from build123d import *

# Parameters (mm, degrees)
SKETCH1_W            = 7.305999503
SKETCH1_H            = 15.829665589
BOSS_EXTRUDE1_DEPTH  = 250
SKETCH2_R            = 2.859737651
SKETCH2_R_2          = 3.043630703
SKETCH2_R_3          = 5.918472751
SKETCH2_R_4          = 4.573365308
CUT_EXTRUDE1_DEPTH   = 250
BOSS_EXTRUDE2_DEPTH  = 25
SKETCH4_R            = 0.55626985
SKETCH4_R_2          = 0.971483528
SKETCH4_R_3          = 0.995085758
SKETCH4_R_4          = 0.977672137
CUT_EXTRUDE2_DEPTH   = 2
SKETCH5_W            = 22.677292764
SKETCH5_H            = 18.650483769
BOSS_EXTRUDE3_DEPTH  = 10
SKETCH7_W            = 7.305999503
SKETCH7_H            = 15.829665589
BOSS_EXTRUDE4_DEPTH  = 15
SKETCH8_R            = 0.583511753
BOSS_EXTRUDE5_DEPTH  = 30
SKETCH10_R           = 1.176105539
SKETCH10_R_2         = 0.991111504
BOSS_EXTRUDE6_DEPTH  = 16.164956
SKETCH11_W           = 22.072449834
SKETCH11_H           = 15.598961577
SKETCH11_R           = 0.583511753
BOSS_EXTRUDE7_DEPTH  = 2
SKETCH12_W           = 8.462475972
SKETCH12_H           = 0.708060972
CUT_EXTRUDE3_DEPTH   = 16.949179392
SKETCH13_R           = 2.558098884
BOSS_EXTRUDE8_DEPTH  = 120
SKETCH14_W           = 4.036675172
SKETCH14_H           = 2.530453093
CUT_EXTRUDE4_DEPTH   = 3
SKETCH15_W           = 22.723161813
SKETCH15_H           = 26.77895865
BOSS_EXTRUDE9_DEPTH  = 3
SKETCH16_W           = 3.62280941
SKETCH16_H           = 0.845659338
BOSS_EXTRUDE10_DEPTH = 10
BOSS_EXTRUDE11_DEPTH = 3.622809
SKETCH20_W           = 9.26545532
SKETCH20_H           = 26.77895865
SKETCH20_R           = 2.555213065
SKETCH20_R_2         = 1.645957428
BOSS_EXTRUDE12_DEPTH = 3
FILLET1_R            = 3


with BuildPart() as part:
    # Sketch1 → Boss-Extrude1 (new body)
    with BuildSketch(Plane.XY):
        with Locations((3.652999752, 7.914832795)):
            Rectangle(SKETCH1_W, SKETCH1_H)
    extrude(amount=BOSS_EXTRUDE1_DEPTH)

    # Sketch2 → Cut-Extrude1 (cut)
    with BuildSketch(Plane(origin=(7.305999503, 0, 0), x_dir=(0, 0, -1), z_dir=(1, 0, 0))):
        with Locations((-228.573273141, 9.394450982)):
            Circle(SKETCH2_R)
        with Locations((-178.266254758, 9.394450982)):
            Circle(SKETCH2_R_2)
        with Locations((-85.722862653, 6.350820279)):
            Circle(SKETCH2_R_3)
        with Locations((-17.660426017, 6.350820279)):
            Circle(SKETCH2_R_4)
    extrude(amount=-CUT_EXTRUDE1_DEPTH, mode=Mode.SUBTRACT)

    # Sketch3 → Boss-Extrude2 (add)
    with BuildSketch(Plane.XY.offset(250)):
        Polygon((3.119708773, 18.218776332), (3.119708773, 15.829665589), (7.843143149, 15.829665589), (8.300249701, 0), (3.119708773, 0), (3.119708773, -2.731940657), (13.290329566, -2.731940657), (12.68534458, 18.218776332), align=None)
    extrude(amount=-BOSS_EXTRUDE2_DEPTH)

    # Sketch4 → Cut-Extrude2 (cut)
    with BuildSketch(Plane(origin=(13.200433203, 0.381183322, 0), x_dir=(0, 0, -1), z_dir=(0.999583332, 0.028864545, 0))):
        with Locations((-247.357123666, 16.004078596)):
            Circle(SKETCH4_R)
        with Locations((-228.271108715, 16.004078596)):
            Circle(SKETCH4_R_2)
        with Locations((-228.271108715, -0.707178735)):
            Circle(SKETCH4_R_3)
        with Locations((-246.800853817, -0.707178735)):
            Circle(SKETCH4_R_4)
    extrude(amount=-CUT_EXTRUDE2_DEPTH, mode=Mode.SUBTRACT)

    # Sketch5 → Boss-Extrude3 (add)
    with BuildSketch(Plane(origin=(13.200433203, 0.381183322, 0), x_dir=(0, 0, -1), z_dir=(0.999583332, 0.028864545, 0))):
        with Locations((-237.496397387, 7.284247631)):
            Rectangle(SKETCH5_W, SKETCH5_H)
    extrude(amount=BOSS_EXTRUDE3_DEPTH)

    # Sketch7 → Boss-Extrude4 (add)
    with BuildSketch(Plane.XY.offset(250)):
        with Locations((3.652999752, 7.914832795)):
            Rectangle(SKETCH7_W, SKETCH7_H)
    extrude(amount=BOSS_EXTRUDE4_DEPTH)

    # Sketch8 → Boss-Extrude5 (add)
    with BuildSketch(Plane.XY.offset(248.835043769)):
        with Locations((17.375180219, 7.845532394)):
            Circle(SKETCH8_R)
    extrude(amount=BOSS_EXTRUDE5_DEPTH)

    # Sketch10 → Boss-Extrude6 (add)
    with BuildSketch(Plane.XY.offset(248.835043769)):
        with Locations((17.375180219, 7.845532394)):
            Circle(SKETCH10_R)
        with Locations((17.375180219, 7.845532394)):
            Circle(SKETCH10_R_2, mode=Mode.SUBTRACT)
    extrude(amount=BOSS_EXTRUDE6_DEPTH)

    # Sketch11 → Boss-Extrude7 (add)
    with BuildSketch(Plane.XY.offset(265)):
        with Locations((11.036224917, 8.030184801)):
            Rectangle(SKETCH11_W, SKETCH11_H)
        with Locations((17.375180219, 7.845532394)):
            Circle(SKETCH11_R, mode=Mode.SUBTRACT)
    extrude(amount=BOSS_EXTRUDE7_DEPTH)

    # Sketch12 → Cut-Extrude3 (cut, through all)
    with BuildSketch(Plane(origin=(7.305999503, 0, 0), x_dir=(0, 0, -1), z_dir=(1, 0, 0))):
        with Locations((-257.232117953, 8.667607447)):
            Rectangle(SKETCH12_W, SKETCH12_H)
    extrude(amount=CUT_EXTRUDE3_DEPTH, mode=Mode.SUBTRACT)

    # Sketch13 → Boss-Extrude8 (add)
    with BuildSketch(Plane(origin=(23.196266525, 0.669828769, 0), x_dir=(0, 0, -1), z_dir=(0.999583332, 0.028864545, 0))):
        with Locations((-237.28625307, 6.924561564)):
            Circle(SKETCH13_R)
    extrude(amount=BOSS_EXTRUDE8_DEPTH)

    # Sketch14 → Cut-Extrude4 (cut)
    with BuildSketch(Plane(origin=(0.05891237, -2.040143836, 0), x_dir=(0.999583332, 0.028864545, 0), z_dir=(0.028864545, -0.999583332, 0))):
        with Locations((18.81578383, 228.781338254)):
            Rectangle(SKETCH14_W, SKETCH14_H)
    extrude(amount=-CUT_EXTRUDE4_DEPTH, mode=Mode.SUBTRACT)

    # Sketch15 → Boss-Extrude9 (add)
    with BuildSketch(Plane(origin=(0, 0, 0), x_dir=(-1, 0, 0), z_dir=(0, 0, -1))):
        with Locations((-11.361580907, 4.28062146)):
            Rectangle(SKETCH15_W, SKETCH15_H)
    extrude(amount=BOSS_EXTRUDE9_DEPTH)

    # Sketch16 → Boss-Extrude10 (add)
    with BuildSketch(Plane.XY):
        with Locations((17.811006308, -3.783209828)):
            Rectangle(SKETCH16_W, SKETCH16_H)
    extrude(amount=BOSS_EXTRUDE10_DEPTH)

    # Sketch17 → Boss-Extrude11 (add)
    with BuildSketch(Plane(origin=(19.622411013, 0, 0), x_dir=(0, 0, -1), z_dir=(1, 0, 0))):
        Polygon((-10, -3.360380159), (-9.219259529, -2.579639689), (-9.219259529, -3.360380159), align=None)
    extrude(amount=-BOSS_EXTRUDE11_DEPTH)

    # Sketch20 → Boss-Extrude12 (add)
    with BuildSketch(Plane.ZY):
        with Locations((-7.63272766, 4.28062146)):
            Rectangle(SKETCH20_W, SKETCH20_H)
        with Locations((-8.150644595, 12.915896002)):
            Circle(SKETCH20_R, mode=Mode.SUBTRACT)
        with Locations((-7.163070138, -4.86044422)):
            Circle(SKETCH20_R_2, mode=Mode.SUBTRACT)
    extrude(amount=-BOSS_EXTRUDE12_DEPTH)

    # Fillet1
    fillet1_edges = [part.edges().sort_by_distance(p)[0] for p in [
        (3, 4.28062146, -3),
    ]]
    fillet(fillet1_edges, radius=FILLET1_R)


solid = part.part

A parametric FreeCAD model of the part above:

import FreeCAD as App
import Part
import Sketcher
Q = App.Units.Quantity


def edges_at(feature, points):
    """Names of the edges that pass closest to the given points."""
    edges = feature.Shape.Edges
    near = lambda p: min(range(len(edges)), key=lambda i: edges[i].distToShape(Part.Vertex(*p))[0])
    return sorted({f"Edge{near(p) + 1}" for p in points})

doc = App.newDocument("Part")
body = doc.addObject("PartDesign::Body", "Body")

# Sketch on XY plane
sketch1 = body.newObject("Sketcher::SketchObject", "Sketch")
sketch1.AttachmentSupport = (doc.getObject("XY_Plane"), [""])
sketch1.MapMode = "FlatFace"
sketch1.addGeometry(Part.LineSegment(App.Vector(0, 16, 0), App.Vector(0, 0, 0)), False)
sketch1.addGeometry(Part.LineSegment(App.Vector(0, 0, 0), App.Vector(7, 0, 0)), False)
sketch1.addGeometry(Part.LineSegment(App.Vector(7, 0, 0), App.Vector(7, 16, 0)), False)
sketch1.addGeometry(Part.LineSegment(App.Vector(7, 16, 0), App.Vector(0, 16, 0)), False)
sketch1.addConstraint(Sketcher.Constraint("Coincident", 0, 2, 1, 1))
sketch1.addConstraint(Sketcher.Constraint("Coincident", 1, 2, 2, 1))
sketch1.addConstraint(Sketcher.Constraint("Coincident", 2, 2, 3, 1))
sketch1.addConstraint(Sketcher.Constraint("Coincident", 3, 2, 0, 1))
sketch1.addConstraint(Sketcher.Constraint("Vertical", 0))
sketch1.addConstraint(Sketcher.Constraint("Horizontal", 1))
sketch1.addConstraint(Sketcher.Constraint("Vertical", 2))
sketch1.addConstraint(Sketcher.Constraint("Horizontal", 3))
sketch1.addConstraint(Sketcher.Constraint("Coincident", 0, 2, -1, 1))
sketch1.addConstraint(Sketcher.Constraint("DistanceX", 1, 1, 1, 2, Q("7.306 mm")))
sketch1.addConstraint(Sketcher.Constraint("DistanceY", 0, 2, 0, 1, Q("15.829666 mm")))
pad1 = body.newObject("PartDesign::Pad", "Pad")
pad1.Profile = sketch1
pad1.Length = 250

# Sketch on YZ plane
sketch2 = body.newObject("Sketcher::SketchObject", "Sketch001")
sketch2.AttachmentSupport = (doc.getObject("YZ_Plane"), [""])
sketch2.MapMode = "FlatFace"
sketch2.AttachmentOffset = App.Placement(App.Vector(0, 0, 7.306), App.Rotation())
sketch2.addGeometry(Part.Circle(App.Vector(9.4, 228.6, 0), App.Vector(0, 0, 1), 2.9), False)
sketch2.addGeometry(Part.Circle(App.Vector(9.4, 178.3, 0), App.Vector(0, 0, 1), 3), False)
sketch2.addGeometry(Part.Circle(App.Vector(6.4, 85.7, 0), App.Vector(0, 0, 1), 5.9), False)
sketch2.addGeometry(Part.Circle(App.Vector(6.4, 17.7, 0), App.Vector(0, 0, 1), 4.6), False)
sketch2.addConstraint(Sketcher.Constraint("Vertical", 0, 3, 1, 3))
sketch2.addConstraint(Sketcher.Constraint("Vertical", 2, 3, 3, 3))
sketch2.addConstraint(Sketcher.Constraint("Diameter", 1, Q("6.087261 mm")))
sketch2.addConstraint(Sketcher.Constraint("Diameter", 3, Q("9.146731 mm")))
sketch2.addConstraint(Sketcher.Constraint("Diameter", 0, Q("5.719475 mm")))
sketch2.addConstraint(Sketcher.Constraint("Diameter", 2, Q("11.836946 mm")))
sketch2.addConstraint(Sketcher.Constraint("DistanceX", -1, 1, 0, 3, Q("9.394451 mm")))
sketch2.addConstraint(Sketcher.Constraint("DistanceX", -1, 1, 2, 3, Q("6.35082 mm")))
sketch2.addConstraint(Sketcher.Constraint("DistanceY", 1, 3, 0, 3, Q("50.307018 mm")))
sketch2.addConstraint(Sketcher.Constraint("DistanceY", 2, 3, 0, 3, Q("142.85041 mm")))
sketch2.addConstraint(Sketcher.Constraint("DistanceY", 3, 3, 1, 3, Q("160.605829 mm")))
sketch2.addConstraint(Sketcher.Constraint("DistanceY", -1, 1, 0, 3, Q("228.573273 mm")))
pocket1 = body.newObject("PartDesign::Pocket", "Pocket")
pocket1.Profile = sketch2
pocket1.Length = 250

# Sketch on XY plane
sketch3 = body.newObject("Sketcher::SketchObject", "Sketch002")
sketch3.AttachmentSupport = (doc.getObject("XY_Plane"), [""])
sketch3.MapMode = "FlatFace"
sketch3.AttachmentOffset = App.Placement(App.Vector(0, 0, 250), App.Rotation())
sketch3.addGeometry(Part.LineSegment(App.Vector(3.1, 18.2, 0), App.Vector(3.1, 15.8, 0)), False)
sketch3.addGeometry(Part.LineSegment(App.Vector(3.1, 15.8, 0), App.Vector(7.8, 15.8, 0)), False)
sketch3.addGeometry(Part.LineSegment(App.Vector(7.8, 15.8, 0), App.Vector(8.3, 0, 0)), False)
sketch3.addGeometry(Part.LineSegment(App.Vector(8.3, 0, 0), App.Vector(3.1, 0, 0)), False)
sketch3.addGeometry(Part.LineSegment(App.Vector(3.1, 0, 0), App.Vector(3.1, -2.7, 0)), False)
sketch3.addGeometry(Part.LineSegment(App.Vector(3.1, -2.7, 0), App.Vector(13.3, -2.7, 0)), False)
sketch3.addGeometry(Part.LineSegment(App.Vector(13.3, -2.7, 0), App.Vector(12.7, 18.2, 0)), False)
sketch3.addGeometry(Part.LineSegment(App.Vector(12.7, 18.2, 0), App.Vector(3.1, 18.2, 0)), False)
sketch3.addConstraint(Sketcher.Constraint("Coincident", 0, 2, 1, 1))
sketch3.addConstraint(Sketcher.Constraint("Coincident", 1, 2, 2, 1))
sketch3.addConstraint(Sketcher.Constraint("Coincident", 2, 2, 3, 1))
sketch3.addConstraint(Sketcher.Constraint("Coincident", 3, 2, 4, 1))
sketch3.addConstraint(Sketcher.Constraint("Coincident", 4, 2, 5, 1))
sketch3.addConstraint(Sketcher.Constraint("Coincident", 5, 2, 6, 1))
sketch3.addConstraint(Sketcher.Constraint("Coincident", 6, 2, 7, 1))
sketch3.addConstraint(Sketcher.Constraint("Coincident", 7, 2, 0, 1))
sketch3.addConstraint(Sketcher.Constraint("Vertical", 0))
sketch3.addConstraint(Sketcher.Constraint("Horizontal", 1))
sketch3.addConstraint(Sketcher.Constraint("Horizontal", 3))
sketch3.addConstraint(Sketcher.Constraint("Vertical", 4))
sketch3.addConstraint(Sketcher.Constraint("Horizontal", 5))
sketch3.addConstraint(Sketcher.Constraint("Horizontal", 7))
sketch3.addConstraint(Sketcher.Constraint("PointOnObject", 2, 2, -1))
sketch3.addConstraint(Sketcher.Constraint("Parallel", 2, 6))
sketch3.addConstraint(Sketcher.Constraint("Vertical", 0, 2, 3, 2))
sketch3.addConstraint(Sketcher.Constraint("DistanceX", 3, 2, 3, 1, Q("5.180541 mm")))
sketch3.addConstraint(Sketcher.Constraint("DistanceX", 5, 1, 5, 2, Q("10.170621 mm")))
sketch3.addConstraint(Sketcher.Constraint("DistanceY", 0, 2, 0, 1, Q("2.389111 mm")))
sketch3.addConstraint(Sketcher.Constraint("DistanceY", 4, 2, 4, 1, Q("2.731941 mm")))
sketch3.addConstraint(Sketcher.Constraint("DistanceX", 1, 2, 6, 2, Q("4.842201 mm")))
sketch3.addConstraint(Sketcher.Constraint("Distance", 6, Q("20.95945 mm")))
sketch3.addConstraint(Sketcher.Constraint("DistanceX", -1, 1, 0, 2, Q("3.119709 mm")))
pad2 = body.newObject("PartDesign::Pad", "Pad001")
pad2.Profile = sketch3
pad2.Length = 25
pad2.Reversed = True

# Sketch on an angled plane
sketch4 = body.newObject("Sketcher::SketchObject", "Sketch003")
sketch4.Placement = App.Placement(App.Vector(13.200433, 0.381183, 0), App.Rotation(App.Vector(0, 0, -1), App.Vector(-0.028864545, 0.999583332, 0), App.Vector(0.999583332, 0.028864545, 0), "ZXY"))
sketch4.addGeometry(Part.Circle(App.Vector(-247.4, 16, 0), App.Vector(0, 0, 1), 0.6), False)
sketch4.addGeometry(Part.Circle(App.Vector(-228.3, 16, 0), App.Vector(0, 0, 1), 1), False)
sketch4.addGeometry(Part.Circle(App.Vector(-228.3, -0.7, 0), App.Vector(0, 0, 1), 1), False)
sketch4.addGeometry(Part.Circle(App.Vector(-246.8, -0.7, 0), App.Vector(0, 0, 1), 1), False)
sketch4.addConstraint(Sketcher.Constraint("Horizontal", 0, 3, 1, 3))
sketch4.addConstraint(Sketcher.Constraint("Horizontal", 2, 3, 3, 3))
sketch4.addConstraint(Sketcher.Constraint("Vertical", 1, 3, 2, 3))
sketch4.addConstraint(Sketcher.Constraint("Diameter", 0, Q("1.11254 mm")))
sketch4.addConstraint(Sketcher.Constraint("Diameter", 2, Q("1.990172 mm")))
sketch4.addConstraint(Sketcher.Constraint("Diameter", 1, Q("1.942967 mm")))
sketch4.addConstraint(Sketcher.Constraint("Diameter", 3, Q("1.955344 mm")))
sketch4.addConstraint(Sketcher.Constraint("DistanceY", -1, 1, 0, 3, Q("16.004079 mm")))
sketch4.addConstraint(Sketcher.Constraint("DistanceX", 1, 3, -1, 1, Q("228.271109 mm")))
sketch4.addConstraint(Sketcher.Constraint("DistanceY", 2, 3, -1, 1, Q("0.707179 mm")))
sketch4.addConstraint(Sketcher.Constraint("DistanceX", 0, 3, 3, 3, Q("0.55627 mm")))
sketch4.addConstraint(Sketcher.Constraint("DistanceX", 0, 3, -1, 1, Q("247.357124 mm")))
pocket2 = body.newObject("PartDesign::Pocket", "Pocket001")
pocket2.Profile = sketch4
pocket2.Length = 2

# Sketch on an angled plane
sketch5 = body.newObject("Sketcher::SketchObject", "Sketch004")
sketch5.Placement = App.Placement(App.Vector(13.200433, 0.381183, 0), App.Rotation(App.Vector(0, 0, -1), App.Vector(-0.028864545, 0.999583332, 0), App.Vector(0.999583332, 0.028864545, 0), "ZXY"))
sketch5.addGeometry(Part.LineSegment(App.Vector(-249, 17, 0), App.Vector(-249, -2, 0)), False)
sketch5.addGeometry(Part.LineSegment(App.Vector(-249, -2, 0), App.Vector(-226, -2, 0)), False)
sketch5.addGeometry(Part.LineSegment(App.Vector(-226, -2, 0), App.Vector(-226, 17, 0)), False)
sketch5.addGeometry(Part.LineSegment(App.Vector(-226, 17, 0), App.Vector(-249, 17, 0)), False)
sketch5.addConstraint(Sketcher.Constraint("Coincident", 0, 2, 1, 1))
sketch5.addConstraint(Sketcher.Constraint("Coincident", 1, 2, 2, 1))
sketch5.addConstraint(Sketcher.Constraint("Coincident", 2, 2, 3, 1))
sketch5.addConstraint(Sketcher.Constraint("Coincident", 3, 2, 0, 1))
sketch5.addConstraint(Sketcher.Constraint("Vertical", 0))
sketch5.addConstraint(Sketcher.Constraint("Horizontal", 1))
sketch5.addConstraint(Sketcher.Constraint("Vertical", 2))
sketch5.addConstraint(Sketcher.Constraint("Horizontal", 3))
sketch5.addConstraint(Sketcher.Constraint("DistanceX", 1, 1, 1, 2, Q("22.677293 mm")))
sketch5.addConstraint(Sketcher.Constraint("DistanceY", 0, 2, 0, 1, Q("18.650484 mm")))
sketch5.addConstraint(Sketcher.Constraint("DistanceX", 1, 2, -1, 1, Q("226.157751 mm")))
sketch5.addConstraint(Sketcher.Constraint("DistanceY", -1, 1, 2, 2, Q("16.60949 mm")))
pad3 = body.newObject("PartDesign::Pad", "Pad002")
pad3.Profile = sketch5
pad3.Length = 10

# Sketch on XY plane
sketch6 = body.newObject("Sketcher::SketchObject", "Sketch005")
sketch6.AttachmentSupport = (doc.getObject("XY_Plane"), [""])
sketch6.MapMode = "FlatFace"
sketch6.AttachmentOffset = App.Placement(App.Vector(0, 0, 250), App.Rotation())
sketch6.addGeometry(Part.LineSegment(App.Vector(0, 16, 0), App.Vector(0, 0, 0)), False)
sketch6.addGeometry(Part.LineSegment(App.Vector(0, 0, 0), App.Vector(7, 0, 0)), False)
sketch6.addGeometry(Part.LineSegment(App.Vector(7, 0, 0), App.Vector(7, 16, 0)), False)
sketch6.addGeometry(Part.LineSegment(App.Vector(7, 16, 0), App.Vector(0, 16, 0)), False)
sketch6.addConstraint(Sketcher.Constraint("Coincident", 0, 2, 1, 1))
sketch6.addConstraint(Sketcher.Constraint("Coincident", 1, 2, 2, 1))
sketch6.addConstraint(Sketcher.Constraint("Coincident", 2, 2, 3, 1))
sketch6.addConstraint(Sketcher.Constraint("Coincident", 3, 2, 0, 1))
sketch6.addConstraint(Sketcher.Constraint("Vertical", 0))
sketch6.addConstraint(Sketcher.Constraint("Horizontal", 1))
sketch6.addConstraint(Sketcher.Constraint("Vertical", 2))
sketch6.addConstraint(Sketcher.Constraint("Horizontal", 3))
sketch6.addConstraint(Sketcher.Constraint("Coincident", 0, 2, -1, 1))
sketch6.addConstraint(Sketcher.Constraint("DistanceX", 1, 1, 1, 2, Q("7.306 mm")))
sketch6.addConstraint(Sketcher.Constraint("DistanceY", 0, 2, 0, 1, Q("15.829666 mm")))
pad4 = body.newObject("PartDesign::Pad", "Pad003")
pad4.Profile = sketch6
pad4.Length = 15

# Sketch on XY plane
sketch7 = body.newObject("Sketcher::SketchObject", "Sketch006")
sketch7.AttachmentSupport = (doc.getObject("XY_Plane"), [""])
sketch7.MapMode = "FlatFace"
sketch7.AttachmentOffset = App.Placement(App.Vector(0, 0, 248.835044), App.Rotation())
sketch7.addGeometry(Part.Circle(App.Vector(17.4, 7.8, 0), App.Vector(0, 0, 1), 0.6), False)
sketch7.addConstraint(Sketcher.Constraint("Diameter", 0, Q("1.167024 mm")))
sketch7.addConstraint(Sketcher.Constraint("DistanceX", -1, 1, 0, 3, Q("17.37518 mm")))
sketch7.addConstraint(Sketcher.Constraint("DistanceY", -1, 1, 0, 3, Q("7.845532 mm")))
pad5 = body.newObject("PartDesign::Pad", "Pad004")
pad5.Profile = sketch7
pad5.Length = 30

# Sketch on XY plane
sketch8 = body.newObject("Sketcher::SketchObject", "Sketch007")
sketch8.AttachmentSupport = (doc.getObject("XY_Plane"), [""])
sketch8.MapMode = "FlatFace"
sketch8.AttachmentOffset = App.Placement(App.Vector(0, 0, 248.835044), App.Rotation())
sketch8.addGeometry(Part.Circle(App.Vector(17.4, 7.8, 0), App.Vector(0, 0, 1), 1.2), False)
sketch8.addGeometry(Part.Circle(App.Vector(17.4, 7.8, 0), App.Vector(0, 0, 1), 1), False)
sketch8.addConstraint(Sketcher.Constraint("Coincident", 1, 3, 0, 3))
sketch8.addConstraint(Sketcher.Constraint("Diameter", 0, Q("2.352211 mm")))
sketch8.addConstraint(Sketcher.Constraint("Diameter", 1, Q("1.982223 mm")))
sketch8.addConstraint(Sketcher.Constraint("DistanceX", -1, 1, 0, 3, Q("17.37518 mm")))
sketch8.addConstraint(Sketcher.Constraint("DistanceY", -1, 1, 0, 3, Q("7.845532 mm")))
pad6 = body.newObject("PartDesign::Pad", "Pad005")
pad6.Profile = sketch8
pad6.Length = 16.164956

# Sketch on XY plane
sketch9 = body.newObject("Sketcher::SketchObject", "Sketch008")
sketch9.AttachmentSupport = (doc.getObject("XY_Plane"), [""])
sketch9.MapMode = "FlatFace"
sketch9.AttachmentOffset = App.Placement(App.Vector(0, 0, 265), App.Rotation())
sketch9.addGeometry(Part.LineSegment(App.Vector(0, 15.8, 0), App.Vector(0, 0.2, 0)), False)
sketch9.addGeometry(Part.LineSegment(App.Vector(0, 0.2, 0), App.Vector(22.1, 0.2, 0)), False)
sketch9.addGeometry(Part.LineSegment(App.Vector(22.1, 0.2, 0), App.Vector(22.1, 15.8, 0)), False)
sketch9.addGeometry(Part.LineSegment(App.Vector(22.1, 15.8, 0), App.Vector(0, 15.8, 0)), False)
sketch9.addGeometry(Part.Circle(App.Vector(17.4, 7.8, 0), App.Vector(0, 0, 1), 0.6), False)
sketch9.addConstraint(Sketcher.Constraint("Coincident", 0, 2, 1, 1))
sketch9.addConstraint(Sketcher.Constraint("Coincident", 1, 2, 2, 1))
sketch9.addConstraint(Sketcher.Constraint("Coincident", 2, 2, 3, 1))
sketch9.addConstraint(Sketcher.Constraint("Coincident", 3, 2, 0, 1))
sketch9.addConstraint(Sketcher.Constraint("Vertical", 0))
sketch9.addConstraint(Sketcher.Constraint("Horizontal", 1))
sketch9.addConstraint(Sketcher.Constraint("Vertical", 2))
sketch9.addConstraint(Sketcher.Constraint("Horizontal", 3))
sketch9.addConstraint(Sketcher.Constraint("PointOnObject", 0, 2, -2))
sketch9.addConstraint(Sketcher.Constraint("Diameter", 4, Q("1.167024 mm")))
sketch9.addConstraint(Sketcher.Constraint("DistanceX", 1, 1, 1, 2, Q("22.07245 mm")))
sketch9.addConstraint(Sketcher.Constraint("DistanceY", 0, 2, 0, 1, Q("15.598962 mm")))
sketch9.addConstraint(Sketcher.Constraint("DistanceX", -1, 1, 4, 3, Q("17.37518 mm")))
sketch9.addConstraint(Sketcher.Constraint("DistanceY", 0, 2, 4, 3, Q("7.614828 mm")))
sketch9.addConstraint(Sketcher.Constraint("DistanceY", -1, 1, 4, 3, Q("7.845532 mm")))
pad7 = body.newObject("PartDesign::Pad", "Pad006")
pad7.Profile = sketch9
pad7.Length = 2

# Sketch on YZ plane
sketch10 = body.newObject("Sketcher::SketchObject", "Sketch009")
sketch10.AttachmentSupport = (doc.getObject("YZ_Plane"), [""])
sketch10.MapMode = "FlatFace"
sketch10.AttachmentOffset = App.Placement(App.Vector(0, 0, 7.306), App.Rotation())
sketch10.addGeometry(Part.LineSegment(App.Vector(9, 261.5, 0), App.Vector(8.3, 261.5, 0)), False)
sketch10.addGeometry(Part.LineSegment(App.Vector(8.3, 261.5, 0), App.Vector(8.3, 253, 0)), False)
sketch10.addGeometry(Part.LineSegment(App.Vector(8.3, 253, 0), App.Vector(9, 253, 0)), False)
sketch10.addGeometry(Part.LineSegment(App.Vector(9, 253, 0), App.Vector(9, 261.5, 0)), False)
sketch10.addConstraint(Sketcher.Constraint("Coincident", 0, 2, 1, 1))
sketch10.addConstraint(Sketcher.Constraint("Coincident", 1, 2, 2, 1))
sketch10.addConstraint(Sketcher.Constraint("Coincident", 2, 2, 3, 1))
sketch10.addConstraint(Sketcher.Constraint("Coincident", 3, 2, 0, 1))
sketch10.addConstraint(Sketcher.Constraint("Horizontal", 0))
sketch10.addConstraint(Sketcher.Constraint("Vertical", 1))
sketch10.addConstraint(Sketcher.Constraint("Horizontal", 2))
sketch10.addConstraint(Sketcher.Constraint("Vertical", 3))
sketch10.addConstraint(Sketcher.Constraint("DistanceX", 0, 2, 0, 1, Q("0.708061 mm")))
sketch10.addConstraint(Sketcher.Constraint("DistanceY", 1, 2, 1, 1, Q("8.462476 mm")))
sketch10.addConstraint(Sketcher.Constraint("DistanceY", -1, 1, 1, 2, Q("253.00088 mm")))
sketch10.addConstraint(Sketcher.Constraint("DistanceX", -1, 1, 0, 2, Q("8.313577 mm")))
pocket3 = body.newObject("PartDesign::Pocket", "Pocket002")
pocket3.Profile = sketch10
pocket3.Type = "ThroughAll"
pocket3.Reversed = True

# Sketch on an angled plane
sketch11 = body.newObject("Sketcher::SketchObject", "Sketch010")
sketch11.Placement = App.Placement(App.Vector(23.196267, 0.669829, 0), App.Rotation(App.Vector(0, 0, -1), App.Vector(-0.028864545, 0.999583332, 0), App.Vector(0.999583332, 0.028864545, 0), "ZXY"))
sketch11.addGeometry(Part.Circle(App.Vector(-237.3, 6.9, 0), App.Vector(0, 0, 1), 2.6), False)
sketch11.addConstraint(Sketcher.Constraint("Diameter", 0, Q("5.116198 mm")))
sketch11.addConstraint(Sketcher.Constraint("DistanceY", -1, 1, 0, 3, Q("6.924562 mm")))
sketch11.addConstraint(Sketcher.Constraint("DistanceX", 0, 3, -1, 1, Q("237.286253 mm")))
pad8 = body.newObject("PartDesign::Pad", "Pad007")
pad8.Profile = sketch11
pad8.Length = 120

# Sketch on an angled plane
sketch12 = body.newObject("Sketcher::SketchObject", "Sketch011")
sketch12.Placement = App.Placement(App.Vector(0.058912, -2.040144, 0), App.Rotation(App.Vector(0.999583332, 0.028864545, 0), App.Vector(0, 0, 1), App.Vector(0.028864545, -0.999583332, 0), "ZXY"))
sketch12.addGeometry(Part.LineSegment(App.Vector(16.8, 230, 0), App.Vector(16.8, 227.5, 0)), False)
sketch12.addGeometry(Part.LineSegment(App.Vector(16.8, 227.5, 0), App.Vector(20.8, 227.5, 0)), False)
sketch12.addGeometry(Part.LineSegment(App.Vector(20.8, 227.5, 0), App.Vector(20.8, 230, 0)), False)
sketch12.addGeometry(Part.LineSegment(App.Vector(20.8, 230, 0), App.Vector(16.8, 230, 0)), False)
sketch12.addConstraint(Sketcher.Constraint("Coincident", 0, 2, 1, 1))
sketch12.addConstraint(Sketcher.Constraint("Coincident", 1, 2, 2, 1))
sketch12.addConstraint(Sketcher.Constraint("Coincident", 2, 2, 3, 1))
sketch12.addConstraint(Sketcher.Constraint("Coincident", 3, 2, 0, 1))
sketch12.addConstraint(Sketcher.Constraint("Vertical", 0))
sketch12.addConstraint(Sketcher.Constraint("Horizontal", 1))
sketch12.addConstraint(Sketcher.Constraint("Vertical", 2))
sketch12.addConstraint(Sketcher.Constraint("Horizontal", 3))
sketch12.addConstraint(Sketcher.Constraint("DistanceX", 1, 1, 1, 2, Q("4.036675 mm")))
sketch12.addConstraint(Sketcher.Constraint("DistanceY", 0, 2, 0, 1, Q("2.530453 mm")))
sketch12.addConstraint(Sketcher.Constraint("DistanceY", -1, 1, 0, 2, Q("227.516112 mm")))
sketch12.addConstraint(Sketcher.Constraint("DistanceX", -1, 1, 1, 2, Q("20.834121 mm")))
pocket4 = body.newObject("PartDesign::Pocket", "Pocket003")
pocket4.Profile = sketch12
pocket4.Length = 3

# Sketch on XY plane
sketch13 = body.newObject("Sketcher::SketchObject", "Sketch012")
sketch13.AttachmentSupport = (doc.getObject("XY_Plane"), [""])
sketch13.MapMode = "FlatFace"
sketch13.addGeometry(Part.LineSegment(App.Vector(23, 18, 0), App.Vector(23, -9, 0)), False)
sketch13.addGeometry(Part.LineSegment(App.Vector(23, -9, 0), App.Vector(0, -9, 0)), False)
sketch13.addGeometry(Part.LineSegment(App.Vector(0, -9, 0), App.Vector(0, 18, 0)), False)
sketch13.addGeometry(Part.LineSegment(App.Vector(0, 18, 0), App.Vector(23, 18, 0)), False)
sketch13.addConstraint(Sketcher.Constraint("Coincident", 0, 2, 1, 1))
sketch13.addConstraint(Sketcher.Constraint("Coincident", 1, 2, 2, 1))
sketch13.addConstraint(Sketcher.Constraint("Coincident", 2, 2, 3, 1))
sketch13.addConstraint(Sketcher.Constraint("Coincident", 3, 2, 0, 1))
sketch13.addConstraint(Sketcher.Constraint("Vertical", 0))
sketch13.addConstraint(Sketcher.Constraint("Horizontal", 1))
sketch13.addConstraint(Sketcher.Constraint("Vertical", 2))
sketch13.addConstraint(Sketcher.Constraint("Horizontal", 3))
sketch13.addConstraint(Sketcher.Constraint("PointOnObject", 1, 2, -2))
sketch13.addConstraint(Sketcher.Constraint("DistanceX", 1, 2, 1, 1, Q("22.723162 mm")))
sketch13.addConstraint(Sketcher.Constraint("DistanceY", 0, 2, 0, 1, Q("26.778959 mm")))
sketch13.addConstraint(Sketcher.Constraint("DistanceY", -1, 1, 2, 2, Q("17.670101 mm")))
pad9 = body.newObject("PartDesign::Pad", "Pad008")
pad9.Profile = sketch13
pad9.Length = 3
pad9.Reversed = True

# Sketch on XY plane
sketch14 = body.newObject("Sketcher::SketchObject", "Sketch013")
sketch14.AttachmentSupport = (doc.getObject("XY_Plane"), [""])
sketch14.MapMode = "FlatFace"
sketch14.addGeometry(Part.LineSegment(App.Vector(16, -3.4, 0), App.Vector(16, -4.2, 0)), False)
sketch14.addGeometry(Part.LineSegment(App.Vector(16, -4.2, 0), App.Vector(19.6, -4.2, 0)), False)
sketch14.addGeometry(Part.LineSegment(App.Vector(19.6, -4.2, 0), App.Vector(19.6, -3.4, 0)), False)
sketch14.addGeometry(Part.LineSegment(App.Vector(19.6, -3.4, 0), App.Vector(16, -3.4, 0)), False)
sketch14.addConstraint(Sketcher.Constraint("Coincident", 0, 2, 1, 1))
sketch14.addConstraint(Sketcher.Constraint("Coincident", 1, 2, 2, 1))
sketch14.addConstraint(Sketcher.Constraint("Coincident", 2, 2, 3, 1))
sketch14.addConstraint(Sketcher.Constraint("Coincident", 3, 2, 0, 1))
sketch14.addConstraint(Sketcher.Constraint("Vertical", 0))
sketch14.addConstraint(Sketcher.Constraint("Horizontal", 1))
sketch14.addConstraint(Sketcher.Constraint("Vertical", 2))
sketch14.addConstraint(Sketcher.Constraint("Horizontal", 3))
sketch14.addConstraint(Sketcher.Constraint("DistanceX", 1, 1, 1, 2, Q("3.622809 mm")))
sketch14.addConstraint(Sketcher.Constraint("DistanceY", 0, 2, 0, 1, Q("0.845659 mm")))
sketch14.addConstraint(Sketcher.Constraint("DistanceX", -1, 1, 0, 2, Q("15.999602 mm")))
sketch14.addConstraint(Sketcher.Constraint("DistanceY", 0, 2, -1, 1, Q("4.206039 mm")))
pad10 = body.newObject("PartDesign::Pad", "Pad009")
pad10.Profile = sketch14
pad10.Length = 10

# Sketch on YZ plane
sketch15 = body.newObject("Sketcher::SketchObject", "Sketch014")
sketch15.AttachmentSupport = (doc.getObject("YZ_Plane"), [""])
sketch15.MapMode = "FlatFace"
sketch15.AttachmentOffset = App.Placement(App.Vector(0, 0, 19.622411), App.Rotation())
sketch15.addGeometry(Part.LineSegment(App.Vector(-2.6, 9.2, 0), App.Vector(-3.4, 10, 0)), False)
sketch15.addGeometry(Part.LineSegment(App.Vector(-3.4, 10, 0), App.Vector(-3.4, 9.2, 0)), False)
sketch15.addGeometry(Part.LineSegment(App.Vector(-3.4, 9.2, 0), App.Vector(-2.6, 9.2, 0)), False)
sketch15.addConstraint(Sketcher.Constraint("Coincident", 0, 2, 1, 1))
sketch15.addConstraint(Sketcher.Constraint("Coincident", 1, 2, 2, 1))
sketch15.addConstraint(Sketcher.Constraint("Coincident", 2, 2, 0, 1))
sketch15.addConstraint(Sketcher.Constraint("Vertical", 1))
sketch15.addConstraint(Sketcher.Constraint("Horizontal", 2))
sketch15.addConstraint(Sketcher.Constraint("Equal", 2, 1))
sketch15.addConstraint(Sketcher.Constraint("DistanceY", -1, 1, 0, 2, Q("10 mm")))
sketch15.addConstraint(Sketcher.Constraint("DistanceX", 2, 1, 2, 2, Q("0.78074 mm")))
sketch15.addConstraint(Sketcher.Constraint("DistanceX", 0, 2, -1, 1, Q("3.36038 mm")))
pad11 = body.newObject("PartDesign::Pad", "Pad010")
pad11.Profile = sketch15
pad11.Length = 3.622809
pad11.Reversed = True

# Sketch on YZ plane
sketch16 = body.newObject("Sketcher::SketchObject", "Sketch015")
sketch16.AttachmentSupport = (doc.getObject("YZ_Plane"), [""])
sketch16.MapMode = "FlatFace"
sketch16.addGeometry(Part.LineSegment(App.Vector(17.7, -12.3, 0), App.Vector(-9.1, -12.3, 0)), False)
sketch16.addGeometry(Part.LineSegment(App.Vector(-9.1, -12.3, 0), App.Vector(-9.1, -3, 0)), False)
sketch16.addGeometry(Part.LineSegment(App.Vector(-9.1, -3, 0), App.Vector(17.7, -3, 0)), False)
sketch16.addGeometry(Part.LineSegment(App.Vector(17.7, -3, 0), App.Vector(17.7, -12.3, 0)), False)
sketch16.addGeometry(Part.Circle(App.Vector(-4.9, -7.2, 0), App.Vector(0, 0, 1), 1.6), False)
sketch16.addGeometry(Part.Circle(App.Vector(12.9, -8.2, 0), App.Vector(0, 0, 1), 2.6), False)
sketch16.addConstraint(Sketcher.Constraint("Coincident", 0, 2, 1, 1))
sketch16.addConstraint(Sketcher.Constraint("Coincident", 1, 2, 2, 1))
sketch16.addConstraint(Sketcher.Constraint("Coincident", 2, 2, 3, 1))
sketch16.addConstraint(Sketcher.Constraint("Coincident", 3, 2, 0, 1))
sketch16.addConstraint(Sketcher.Constraint("Horizontal", 0))
sketch16.addConstraint(Sketcher.Constraint("Vertical", 1))
sketch16.addConstraint(Sketcher.Constraint("Horizontal", 2))
sketch16.addConstraint(Sketcher.Constraint("Vertical", 3))
sketch16.addConstraint(Sketcher.Constraint("DistanceY", 1, 2, -1, 1, Q("3 mm")))
sketch16.addConstraint(Sketcher.Constraint("Diameter", 4, Q("3.291915 mm")))
sketch16.addConstraint(Sketcher.Constraint("Diameter", 5, Q("5.110426 mm")))
sketch16.addConstraint(Sketcher.Constraint("DistanceX", 0, 2, 0, 1, Q("26.778959 mm")))
sketch16.addConstraint(Sketcher.Constraint("DistanceX", -1, 1, 2, 2, Q("17.670101 mm")))
sketch16.addConstraint(Sketcher.Constraint("DistanceY", 1, 1, 1, 2, Q("9.265455 mm")))
sketch16.addConstraint(Sketcher.Constraint("DistanceY", 4, 3, -1, 1, Q("7.16307 mm")))
sketch16.addConstraint(Sketcher.Constraint("DistanceX", 4, 3, 5, 3, Q("17.77634 mm")))
sketch16.addConstraint(Sketcher.Constraint("DistanceY", 0, 2, 5, 3, Q("4.114811 mm")))
sketch16.addConstraint(Sketcher.Constraint("DistanceX", 4, 3, -1, 1, Q("4.860444 mm")))
pad12 = body.newObject("PartDesign::Pad", "Pad011")
pad12.Profile = sketch16
pad12.Length = 3
doc.recompute()

fillet = body.newObject("PartDesign::Fillet", "Fillet")
fillet.Base = (pad12, edges_at(pad12, [(3, 4.281, -3)]))
fillet.Radius = 3

doc.recompute()
